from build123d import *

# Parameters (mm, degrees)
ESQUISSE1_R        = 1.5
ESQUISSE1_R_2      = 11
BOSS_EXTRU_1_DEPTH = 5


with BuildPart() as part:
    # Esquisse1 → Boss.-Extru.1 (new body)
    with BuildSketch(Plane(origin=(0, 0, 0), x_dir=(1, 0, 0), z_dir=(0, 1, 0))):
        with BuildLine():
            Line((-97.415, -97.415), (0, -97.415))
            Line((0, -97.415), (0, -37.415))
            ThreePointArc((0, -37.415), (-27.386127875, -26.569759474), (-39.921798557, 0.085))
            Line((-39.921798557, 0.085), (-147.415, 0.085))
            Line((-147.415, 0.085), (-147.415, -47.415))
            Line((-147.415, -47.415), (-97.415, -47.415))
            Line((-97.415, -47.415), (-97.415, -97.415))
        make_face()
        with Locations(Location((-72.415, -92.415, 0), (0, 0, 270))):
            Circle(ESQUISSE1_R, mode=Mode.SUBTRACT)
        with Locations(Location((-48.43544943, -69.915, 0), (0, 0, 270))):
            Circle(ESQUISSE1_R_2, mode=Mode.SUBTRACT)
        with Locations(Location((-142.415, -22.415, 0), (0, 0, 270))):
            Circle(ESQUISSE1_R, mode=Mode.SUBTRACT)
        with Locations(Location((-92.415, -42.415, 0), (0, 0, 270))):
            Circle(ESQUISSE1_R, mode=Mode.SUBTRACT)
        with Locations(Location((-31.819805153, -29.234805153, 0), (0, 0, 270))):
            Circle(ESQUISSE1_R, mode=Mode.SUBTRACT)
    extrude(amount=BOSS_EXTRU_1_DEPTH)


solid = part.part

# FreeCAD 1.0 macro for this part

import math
import FreeCAD as App
import Part
import Sketcher

V = App.Vector

doc = App.newDocument("Part")
params = doc.addObject("Spreadsheet::Sheet", "Params")
for row, (alias, value) in enumerate([
    ("sketch1_diameter", "3 mm"),
    ("sketch1_diameter2", "22 mm"),
    ("sketch1_radius", "40 mm"),
    ("sketch1_width", "50 mm"),
    ("sketch1_height", "60 mm"),
    ("pad1_length", "5 mm"),
], start=1):
    params.set(f"A{row}", alias)
    params.set(f"B{row}", "=" + value)
    params.setAlias(f"B{row}", alias)

body = doc.addObject("PartDesign::Body", "Body")

# Sketch on XZ plane
sketch1 = doc.addObject("Sketcher::SketchObject", "Sketch")
body.addObject(sketch1)
sketch1.AttachmentSupport = (doc.XZ_Plane, [""])
sketch1.MapMode = "FlatFace"
sketch1.addGeometry(Part.LineSegment(V(-97.4, 97.4, 0), V(0, 97.4, 0)), False)
sketch1.addGeometry(Part.LineSegment(V(0, 97.4, 0), V(0, 37.4, 0)), False)
sketch1.addGeometry(Part.ArcOfCircle(Part.Circle(V(0, -2.6, 0), V(0, 0, 1), 40), math.radians(90), math.radians(176)), False)
sketch1.addGeometry(Part.LineSegment(V(-39.9, -0.1, 0), V(-147.4, -0.1, 0)), False)
sketch1.addGeometry(Part.LineSegment(V(-147.4, -0.1, 0), V(-147.4, 47.4, 0)), False)
sketch1.addGeometry(Part.LineSegment(V(-147.4, 47.4, 0), V(-97.4, 47.4, 0)), False)
sketch1.addGeometry(Part.LineSegment(V(-97.4, 47.4, 0), V(-97.4, 97.4, 0)), False)
sketch1.addGeometry(Part.Circle(V(-72.4, 92.4, 0), V(0, 0, 1), 1.5), False)
sketch1.addGeometry(Part.Circle(V(-48.4, 69.9, 0), V(0, 0, 1), 11), False)
sketch1.addGeometry(Part.Circle(V(-92.4, 42.4, 0), V(0, 0, 1), 1.5), False)
sketch1.addGeometry(Part.Circle(V(-142.4, 22.4, 0), V(0, 0, 1), 1.5), False)
sketch1.addGeometry(Part.Circle(V(-31.8, 29.2, 0), V(0, 0, 1), 1.5), False)
sketch1.addConstraint(Sketcher.Constraint("Coincident", 0, 2, 1, 1))
sketch1.addConstraint(Sketcher.Constraint("Coincident", 1, 2, 2, 1))
sketch1.addConstraint(Sketcher.Constraint("Coincident", 2, 2, 3, 1))
sketch1.addConstraint(Sketcher.Constraint("Coincident", 3, 2, 4, 1))
sketch1.addConstraint(Sketcher.Constraint("Coincident", 4, 2, 5, 1))
sketch1.addConstraint(Sketcher.Constraint("Coincident", 5, 2, 6, 1))
sketch1.addConstraint(Sketcher.Constraint("Coincident", 6, 2, 0, 1))
sketch1.addConstraint(Sketcher.Constraint("Horizontal", 0))
sketch1.addConstraint(Sketcher.Constraint("Vertical", 1))
sketch1.addConstraint(Sketcher.Constraint("Horizontal", 3))
sketch1.addConstraint(Sketcher.Constraint("Vertical", 4))
sketch1.addConstraint(Sketcher.Constraint("Horizontal", 5))
sketch1.addConstraint(Sketcher.Constraint("Vertical", 6))
sketch1.addConstraint(Sketcher.Constraint("Equal", 7, 9))
sketch1.addConstraint(Sketcher.Constraint("Equal", 9, 10))
sketch1.addConstraint(Sketcher.Constraint("Equal", 10, 11))
sketch1.addConstraint(Sketcher.Constraint("PointOnObject", 2, 3, -2))
sketch1.addConstraint(Sketcher.Constraint("PointOnObject", 0, 2, -2))
sketch1.addConstraint(Sketcher.Constraint("Equal", 5, 6))
sketch1.addConstraint(Sketcher.Constraint("Diameter", 7, 3.0))
sketch1.addConstraint(Sketcher.Constraint("Diameter", 8, 22.0))
sketch1.addConstraint(Sketcher.Constraint("Radius", 2, 40.0))
sketch1.addConstraint(Sketcher.Constraint("DistanceX", 5, 1, 5, 2, 50.0))
sketch1.addConstraint(Sketcher.Constraint("DistanceY", 1, 2, 1, 1, 60.0))
sketch1.addConstraint(Sketcher.Constraint("DistanceY", 4, 1, 4, 2, 47.5))
sketch1.addConstraint(Sketcher.Constraint("DistanceY", 2, 3, 7, 3, 95.0))
sketch1.addConstraint(Sketcher.Constraint("DistanceX", 9, 3, 7, 3, 20.0))
sketch1.addConstraint(Sketcher.Constraint("DistanceY", 9, 3, 7, 3, 50.0))
sketch1.addConstraint(Sketcher.Constraint("DistanceX", 10, 3, 9, 3, 50.0))
sketch1.addConstraint(Sketcher.Constraint("DistanceY", 10, 3, 9, 3, 20.0))
sketch1.addConstraint(Sketcher.Constraint("DistanceY", 2, 2, 8, 3, 70.0))
sketch1.addConstraint(Sketcher.Constraint("DistanceX", 3, 2, 10, 3, 5.0))
sketch1.addConstraint(Sketcher.Constraint("DistanceX", 0, 1, 0, 2, 97.415))
sketch1.addConstraint(Sketcher.Constraint("DistanceY", 2, 3, -1, 1, 2.585))
sketch1.addConstraint(Sketcher.Constraint("DistanceX", 8, 3, -1, 1, 48.435449))
sketch1.addConstraint(Sketcher.Constraint("DistanceX", 11, 3, -1, 1, 31.819805))
sketch1.addConstraint(Sketcher.Constraint("DistanceY", -1, 1, 11, 3, 29.234805))
sketch1.setExpression("Constraints[19]", "Params.sketch1_diameter")
sketch1.setExpression("Constraints[20]", "Params.sketch1_diameter2")
sketch1.setExpression("Constraints[21]", "Params.sketch1_radius")
sketch1.setExpression("Constraints[22]", "Params.sketch1_width")
sketch1.setExpression("Constraints[23]", "Params.sketch1_height")
pad1 = doc.addObject("PartDesign::Pad", "Pad")
body.addObject(pad1)
pad1.Profile = sketch1
pad1.setExpression("Length", "Params.pad1_length")
pad1.Reversed = True

doc.recompute()
